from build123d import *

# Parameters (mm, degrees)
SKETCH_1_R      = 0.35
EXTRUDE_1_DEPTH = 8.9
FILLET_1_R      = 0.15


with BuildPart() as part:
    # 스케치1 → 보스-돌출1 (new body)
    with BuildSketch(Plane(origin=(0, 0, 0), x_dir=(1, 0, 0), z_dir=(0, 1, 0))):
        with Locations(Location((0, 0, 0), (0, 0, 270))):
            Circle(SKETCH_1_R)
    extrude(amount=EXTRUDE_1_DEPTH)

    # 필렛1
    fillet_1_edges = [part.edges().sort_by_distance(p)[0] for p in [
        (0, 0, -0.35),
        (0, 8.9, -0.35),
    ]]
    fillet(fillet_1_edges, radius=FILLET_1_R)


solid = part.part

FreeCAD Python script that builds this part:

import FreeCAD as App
import Part
import Sketcher
Q = App.Units.Quantity


def edges_at(feature, points):
    """Names of the edges that pass closest to the given points."""
    edges = feature.Shape.Edges
    near = lambda p: min(range(len(edges)), key=lambda i: edges[i].distToShape(Part.Vertex(*p))[0])
    return sorted({f"Edge{near(p) + 1}" for p in points})

doc = App.newDocument("Part")
body = doc.addObject("PartDesign::Body", "Body")

# Sketch on XZ plane
sketch1 = body.newObject("Sketcher::SketchObject", "Sketch")
sketch1.AttachmentSupport = (doc.getObject("XZ_Plane"), [""])
sketch1.MapMode = "FlatFace"
sketch1.addGeometry(Part.Circle(App.Vector(0, 0, 0), App.Vector(0, 0, 1), 0.35), False)
sketch1.addConstraint(Sketcher.Constraint("Coincident", 0, 3, -1, 1))
sketch1.addConstraint(Sketcher.Constraint("Diameter", 0, Q("0.7 mm")))
pad1 = body.newObject("PartDesign::Pad", "Pad")
pad1.Profile = sketch1
pad1.Length = 8.9
pad1.Reversed = True
doc.recompute()

fillet = body.newObject("PartDesign::Fillet", "Fillet")
fillet.Base = (pad1, edges_at(pad1, [(0, 0, -0.35), (0, 8.9, -0.35)]))
fillet.Radius = 0.15

doc.recompute()
